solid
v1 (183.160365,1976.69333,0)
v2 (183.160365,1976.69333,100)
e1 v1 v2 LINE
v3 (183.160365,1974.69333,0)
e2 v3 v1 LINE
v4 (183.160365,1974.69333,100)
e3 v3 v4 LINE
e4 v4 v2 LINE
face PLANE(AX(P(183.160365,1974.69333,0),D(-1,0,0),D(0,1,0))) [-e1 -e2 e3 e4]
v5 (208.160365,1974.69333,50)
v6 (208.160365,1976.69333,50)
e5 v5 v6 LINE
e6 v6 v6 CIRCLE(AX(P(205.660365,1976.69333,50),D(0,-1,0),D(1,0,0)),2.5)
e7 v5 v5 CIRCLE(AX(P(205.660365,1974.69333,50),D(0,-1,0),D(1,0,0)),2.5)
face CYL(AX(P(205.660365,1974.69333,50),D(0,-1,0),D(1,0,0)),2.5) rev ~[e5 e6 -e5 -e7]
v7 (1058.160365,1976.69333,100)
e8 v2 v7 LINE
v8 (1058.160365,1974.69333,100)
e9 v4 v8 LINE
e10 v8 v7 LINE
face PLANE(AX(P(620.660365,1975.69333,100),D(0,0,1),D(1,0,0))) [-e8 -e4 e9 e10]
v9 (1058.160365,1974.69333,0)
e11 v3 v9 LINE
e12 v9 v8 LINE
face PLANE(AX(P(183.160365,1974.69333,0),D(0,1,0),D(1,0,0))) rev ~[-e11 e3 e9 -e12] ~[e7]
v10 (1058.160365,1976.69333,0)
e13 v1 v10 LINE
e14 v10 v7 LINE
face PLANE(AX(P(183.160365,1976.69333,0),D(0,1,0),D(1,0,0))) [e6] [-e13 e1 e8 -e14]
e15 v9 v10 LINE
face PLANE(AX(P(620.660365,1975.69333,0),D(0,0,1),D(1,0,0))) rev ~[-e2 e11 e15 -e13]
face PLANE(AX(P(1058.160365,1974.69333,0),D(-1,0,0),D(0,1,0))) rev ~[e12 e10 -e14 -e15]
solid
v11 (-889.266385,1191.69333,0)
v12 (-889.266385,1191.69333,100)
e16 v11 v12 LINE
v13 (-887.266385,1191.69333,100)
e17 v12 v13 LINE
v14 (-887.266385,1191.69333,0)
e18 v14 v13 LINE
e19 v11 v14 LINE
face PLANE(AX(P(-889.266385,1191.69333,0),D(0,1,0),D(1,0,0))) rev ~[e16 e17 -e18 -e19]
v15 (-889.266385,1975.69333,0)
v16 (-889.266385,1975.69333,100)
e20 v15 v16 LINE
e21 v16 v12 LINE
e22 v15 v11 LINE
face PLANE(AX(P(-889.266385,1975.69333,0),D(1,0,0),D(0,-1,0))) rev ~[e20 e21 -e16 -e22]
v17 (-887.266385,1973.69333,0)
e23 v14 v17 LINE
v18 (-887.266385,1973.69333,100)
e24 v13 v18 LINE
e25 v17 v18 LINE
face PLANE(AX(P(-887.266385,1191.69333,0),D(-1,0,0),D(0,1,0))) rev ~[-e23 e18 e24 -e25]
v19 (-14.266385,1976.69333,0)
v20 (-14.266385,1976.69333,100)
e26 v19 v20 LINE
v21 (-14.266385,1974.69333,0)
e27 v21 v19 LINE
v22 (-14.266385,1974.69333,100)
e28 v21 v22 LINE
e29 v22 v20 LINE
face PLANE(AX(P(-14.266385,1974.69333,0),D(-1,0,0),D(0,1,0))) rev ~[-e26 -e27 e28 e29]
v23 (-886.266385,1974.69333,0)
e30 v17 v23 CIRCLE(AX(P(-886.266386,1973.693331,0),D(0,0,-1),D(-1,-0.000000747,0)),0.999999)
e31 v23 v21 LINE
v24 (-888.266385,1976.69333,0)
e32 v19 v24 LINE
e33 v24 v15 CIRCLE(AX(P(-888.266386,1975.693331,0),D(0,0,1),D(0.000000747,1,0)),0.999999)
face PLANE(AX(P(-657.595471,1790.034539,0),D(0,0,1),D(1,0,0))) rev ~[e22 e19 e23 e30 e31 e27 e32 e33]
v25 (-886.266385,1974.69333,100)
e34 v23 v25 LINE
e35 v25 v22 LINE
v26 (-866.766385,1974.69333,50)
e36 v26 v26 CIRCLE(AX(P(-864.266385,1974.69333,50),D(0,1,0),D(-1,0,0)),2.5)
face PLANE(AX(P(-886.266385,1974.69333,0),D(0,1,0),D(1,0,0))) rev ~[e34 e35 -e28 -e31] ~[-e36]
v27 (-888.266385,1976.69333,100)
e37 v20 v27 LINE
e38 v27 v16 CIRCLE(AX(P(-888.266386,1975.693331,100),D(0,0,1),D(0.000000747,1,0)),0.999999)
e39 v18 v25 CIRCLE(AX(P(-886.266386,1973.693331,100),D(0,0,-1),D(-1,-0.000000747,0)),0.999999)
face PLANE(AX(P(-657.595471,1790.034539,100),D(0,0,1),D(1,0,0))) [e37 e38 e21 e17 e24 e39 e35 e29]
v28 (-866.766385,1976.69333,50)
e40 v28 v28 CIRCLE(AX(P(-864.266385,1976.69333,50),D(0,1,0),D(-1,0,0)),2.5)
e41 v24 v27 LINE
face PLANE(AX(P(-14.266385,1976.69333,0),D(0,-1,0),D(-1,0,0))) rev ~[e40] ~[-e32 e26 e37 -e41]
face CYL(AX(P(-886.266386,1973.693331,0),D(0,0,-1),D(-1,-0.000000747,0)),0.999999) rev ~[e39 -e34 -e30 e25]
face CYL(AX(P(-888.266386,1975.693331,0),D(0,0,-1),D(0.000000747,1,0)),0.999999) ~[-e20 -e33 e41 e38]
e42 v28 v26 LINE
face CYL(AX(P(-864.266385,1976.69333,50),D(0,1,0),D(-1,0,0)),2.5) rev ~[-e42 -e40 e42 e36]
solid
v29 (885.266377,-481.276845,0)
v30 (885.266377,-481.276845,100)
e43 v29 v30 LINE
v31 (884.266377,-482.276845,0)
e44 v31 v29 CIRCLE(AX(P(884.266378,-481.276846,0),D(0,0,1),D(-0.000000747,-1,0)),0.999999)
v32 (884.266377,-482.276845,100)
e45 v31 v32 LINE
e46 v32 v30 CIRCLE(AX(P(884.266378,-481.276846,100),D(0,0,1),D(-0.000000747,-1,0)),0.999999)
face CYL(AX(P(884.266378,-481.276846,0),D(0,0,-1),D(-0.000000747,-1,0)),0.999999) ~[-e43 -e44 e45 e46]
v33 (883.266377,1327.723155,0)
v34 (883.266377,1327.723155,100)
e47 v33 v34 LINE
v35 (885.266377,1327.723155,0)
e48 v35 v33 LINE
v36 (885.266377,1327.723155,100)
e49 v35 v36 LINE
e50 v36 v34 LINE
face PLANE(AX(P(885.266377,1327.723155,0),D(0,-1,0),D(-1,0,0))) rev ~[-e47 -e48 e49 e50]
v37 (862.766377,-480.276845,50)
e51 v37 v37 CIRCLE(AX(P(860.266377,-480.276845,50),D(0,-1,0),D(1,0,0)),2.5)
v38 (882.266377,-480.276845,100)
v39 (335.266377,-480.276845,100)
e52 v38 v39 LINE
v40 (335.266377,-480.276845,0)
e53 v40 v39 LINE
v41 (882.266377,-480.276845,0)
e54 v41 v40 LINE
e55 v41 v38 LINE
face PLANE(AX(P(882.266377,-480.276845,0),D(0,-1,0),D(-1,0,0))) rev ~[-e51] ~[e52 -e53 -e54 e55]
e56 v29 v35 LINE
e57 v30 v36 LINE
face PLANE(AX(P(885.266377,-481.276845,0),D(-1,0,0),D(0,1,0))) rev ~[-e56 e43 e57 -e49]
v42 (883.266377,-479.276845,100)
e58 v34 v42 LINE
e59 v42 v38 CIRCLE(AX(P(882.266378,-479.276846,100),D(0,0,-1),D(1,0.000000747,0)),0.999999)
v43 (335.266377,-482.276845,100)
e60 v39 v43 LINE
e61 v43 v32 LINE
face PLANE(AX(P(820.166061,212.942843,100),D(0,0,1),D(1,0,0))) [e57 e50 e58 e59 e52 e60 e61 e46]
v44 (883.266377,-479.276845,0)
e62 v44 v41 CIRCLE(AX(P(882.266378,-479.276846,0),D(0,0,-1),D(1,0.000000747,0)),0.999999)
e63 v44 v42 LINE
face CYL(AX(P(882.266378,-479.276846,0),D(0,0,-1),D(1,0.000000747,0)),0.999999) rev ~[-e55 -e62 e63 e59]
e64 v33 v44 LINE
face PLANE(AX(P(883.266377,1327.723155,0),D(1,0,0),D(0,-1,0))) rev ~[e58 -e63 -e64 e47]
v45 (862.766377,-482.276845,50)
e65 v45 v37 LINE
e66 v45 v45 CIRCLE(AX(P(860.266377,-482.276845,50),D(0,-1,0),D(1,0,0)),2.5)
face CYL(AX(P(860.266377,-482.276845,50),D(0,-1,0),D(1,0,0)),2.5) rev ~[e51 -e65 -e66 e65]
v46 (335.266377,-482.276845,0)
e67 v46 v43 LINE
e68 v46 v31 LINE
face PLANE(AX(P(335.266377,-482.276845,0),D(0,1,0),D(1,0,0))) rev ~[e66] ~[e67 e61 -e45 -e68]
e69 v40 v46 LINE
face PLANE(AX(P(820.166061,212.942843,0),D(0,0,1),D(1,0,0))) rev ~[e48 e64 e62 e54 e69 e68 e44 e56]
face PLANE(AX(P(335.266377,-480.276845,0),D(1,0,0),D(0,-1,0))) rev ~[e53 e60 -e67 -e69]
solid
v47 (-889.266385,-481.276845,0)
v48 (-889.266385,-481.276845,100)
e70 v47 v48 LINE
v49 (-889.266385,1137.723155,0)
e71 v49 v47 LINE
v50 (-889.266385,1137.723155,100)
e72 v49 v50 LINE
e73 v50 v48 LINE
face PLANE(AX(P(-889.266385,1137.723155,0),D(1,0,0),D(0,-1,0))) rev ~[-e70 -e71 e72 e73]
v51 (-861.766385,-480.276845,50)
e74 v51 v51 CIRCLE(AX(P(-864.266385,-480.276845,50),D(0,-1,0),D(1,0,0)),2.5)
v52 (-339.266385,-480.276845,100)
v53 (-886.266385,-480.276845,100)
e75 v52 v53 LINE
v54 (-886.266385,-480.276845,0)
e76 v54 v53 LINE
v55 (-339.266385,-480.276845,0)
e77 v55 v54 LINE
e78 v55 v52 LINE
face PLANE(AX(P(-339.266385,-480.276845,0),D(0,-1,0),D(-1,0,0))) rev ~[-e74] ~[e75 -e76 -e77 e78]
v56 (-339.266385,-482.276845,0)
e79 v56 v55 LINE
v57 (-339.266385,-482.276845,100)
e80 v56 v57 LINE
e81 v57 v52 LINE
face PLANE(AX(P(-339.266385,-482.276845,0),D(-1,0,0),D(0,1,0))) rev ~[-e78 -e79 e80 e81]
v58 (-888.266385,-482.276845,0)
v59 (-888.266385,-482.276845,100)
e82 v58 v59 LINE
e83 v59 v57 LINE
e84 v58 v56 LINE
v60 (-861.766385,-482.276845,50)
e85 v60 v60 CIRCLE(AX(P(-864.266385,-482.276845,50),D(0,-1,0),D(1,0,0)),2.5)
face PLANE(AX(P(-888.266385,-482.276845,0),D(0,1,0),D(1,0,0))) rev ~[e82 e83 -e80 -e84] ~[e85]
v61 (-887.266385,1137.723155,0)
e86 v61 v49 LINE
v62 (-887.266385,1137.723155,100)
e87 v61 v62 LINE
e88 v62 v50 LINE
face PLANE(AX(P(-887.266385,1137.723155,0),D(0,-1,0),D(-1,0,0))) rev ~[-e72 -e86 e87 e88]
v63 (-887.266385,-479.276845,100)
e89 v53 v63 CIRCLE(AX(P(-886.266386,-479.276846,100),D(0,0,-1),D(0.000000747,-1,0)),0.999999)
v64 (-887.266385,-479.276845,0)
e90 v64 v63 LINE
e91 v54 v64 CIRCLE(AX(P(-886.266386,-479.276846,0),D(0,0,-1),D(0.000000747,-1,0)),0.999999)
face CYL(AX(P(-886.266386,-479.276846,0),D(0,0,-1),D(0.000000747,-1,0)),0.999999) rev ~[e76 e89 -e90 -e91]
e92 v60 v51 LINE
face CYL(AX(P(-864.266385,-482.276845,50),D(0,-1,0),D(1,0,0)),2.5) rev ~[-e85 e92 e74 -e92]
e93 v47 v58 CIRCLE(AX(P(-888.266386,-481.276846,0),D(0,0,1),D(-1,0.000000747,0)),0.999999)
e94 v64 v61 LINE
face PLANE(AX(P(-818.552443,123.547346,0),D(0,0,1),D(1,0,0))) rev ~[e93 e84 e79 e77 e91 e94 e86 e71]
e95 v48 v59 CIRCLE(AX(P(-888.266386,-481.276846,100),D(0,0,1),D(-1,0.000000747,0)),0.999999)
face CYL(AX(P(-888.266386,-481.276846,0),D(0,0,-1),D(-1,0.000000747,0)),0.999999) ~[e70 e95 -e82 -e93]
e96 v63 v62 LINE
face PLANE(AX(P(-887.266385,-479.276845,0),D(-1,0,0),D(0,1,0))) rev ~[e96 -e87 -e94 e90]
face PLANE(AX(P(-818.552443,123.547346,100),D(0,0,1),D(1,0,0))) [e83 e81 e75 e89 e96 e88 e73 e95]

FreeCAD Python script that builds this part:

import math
import FreeCAD as App
import Part
import Sketcher


def add_polygon(sketch, points):
    """Adds a closed chain of lines whose ends are joined by coincident constraints."""
    first, n = sketch.GeometryCount, len(points)
    for a, b in zip(points, points[1:] + points[:1]):
        sketch.addGeometry(Part.LineSegment(App.Vector(*a, 0), App.Vector(*b, 0)), False)
    for i in range(n):
        sketch.addConstraint(Sketcher.Constraint("Coincident", first + i, 2, first + (i + 1) % n, 1))

doc = App.newDocument("Part")
body = doc.addObject("PartDesign::Body", "Body")
body.AllowCompound = True

# Sketch on XY plane
sketch1 = doc.addObject("Sketcher::SketchObject", "Sketch")
body.addObject(sketch1)
sketch1.AttachmentSupport = (doc.XY_Plane, [""])
sketch1.MapMode = "FlatFace"
sketch1.addGeometry(Part.LineSegment(App.Vector(-339.3, -482.3, 0), App.Vector(-339.3, -480.3, 0)), False)  # 0
sketch1.addGeometry(Part.LineSegment(App.Vector(-339.3, -480.3, 0), App.Vector(-886.3, -480.3, 0)), False)  # 1
sketch1.addGeometry(Part.ArcOfCircle(Part.Circle(App.Vector(-886.3, -479.3, 0), App.Vector(0, 0, 1), 1), math.radians(180), math.radians(270)), False)  # 2
sketch1.addGeometry(Part.LineSegment(App.Vector(-887.3, -479.3, 0), App.Vector(-887.3, 1137.7, 0)), False)  # 3
sketch1.addGeometry(Part.LineSegment(App.Vector(-887.3, 1137.7, 0), App.Vector(-889.3, 1137.7, 0)), False)  # 4
sketch1.addGeometry(Part.LineSegment(App.Vector(-889.3, 1137.7, 0), App.Vector(-889.3, -481.3, 0)), False)  # 5
sketch1.addGeometry(Part.ArcOfCircle(Part.Circle(App.Vector(-888.3, -481.3, 0), App.Vector(0, 0, 1), 1), math.radians(180), math.radians(270)), False)  # 6
sketch1.addGeometry(Part.LineSegment(App.Vector(-888.3, -482.3, 0), App.Vector(-339.3, -482.3, 0)), False)  # 7
sketch1.addGeometry(Part.LineSegment(App.Vector(882.3, -480.3, 0), App.Vector(335.3, -480.3, 0)), False)  # 8
sketch1.addGeometry(Part.LineSegment(App.Vector(335.3, -480.3, 0), App.Vector(335.3, -482.3, 0)), False)  # 9
sketch1.addGeometry(Part.LineSegment(App.Vector(335.3, -482.3, 0), App.Vector(884.3, -482.3, 0)), False)  # 10
sketch1.addGeometry(Part.ArcOfCircle(Part.Circle(App.Vector(884.3, -481.3, 0), App.Vector(0, 0, 1), 1), math.radians(-90), math.radians(0)), False)  # 11
sketch1.addGeometry(Part.LineSegment(App.Vector(885.3, -481.3, 0), App.Vector(885.3, 1327.7, 0)), False)  # 12
sketch1.addGeometry(Part.LineSegment(App.Vector(885.3, 1327.7, 0), App.Vector(883.3, 1327.7, 0)), False)  # 13
sketch1.addGeometry(Part.LineSegment(App.Vector(883.3, 1327.7, 0), App.Vector(883.3, -479.3, 0)), False)  # 14
sketch1.addGeometry(Part.ArcOfCircle(Part.Circle(App.Vector(882.3, -479.3, 0), App.Vector(0, 0, 1), 1), math.radians(-90), math.radians(0)), False)  # 15
sketch1.addGeometry(Part.LineSegment(App.Vector(-889.3, 1975.7, 0), App.Vector(-889.3, 1191.7, 0)), False)  # 16
sketch1.addGeometry(Part.LineSegment(App.Vector(-889.3, 1191.7, 0), App.Vector(-887.3, 1191.7, 0)), False)  # 17
sketch1.addGeometry(Part.LineSegment(App.Vector(-887.3, 1191.7, 0), App.Vector(-887.3, 1973.7, 0)), False)  # 18
sketch1.addGeometry(Part.ArcOfCircle(Part.Circle(App.Vector(-886.3, 1973.7, 0), App.Vector(0, 0, 1), 1), math.radians(90), math.radians(180)), False)  # 19
sketch1.addGeometry(Part.LineSegment(App.Vector(-886.3, 1974.7, 0), App.Vector(-14.3, 1974.7, 0)), False)  # 20
sketch1.addGeometry(Part.LineSegment(App.Vector(-14.3, 1974.7, 0), App.Vector(-14.3, 1976.7, 0)), False)  # 21
sketch1.addGeometry(Part.LineSegment(App.Vector(-14.3, 1976.7, 0), App.Vector(-888.3, 1976.7, 0)), False)  # 22
sketch1.addGeometry(Part.ArcOfCircle(Part.Circle(App.Vector(-888.3, 1975.7, 0), App.Vector(0, 0, 1), 1), math.radians(90), math.radians(180)), False)  # 23
add_polygon(sketch1, [(183.2, 1976.7), (183.2, 1974.7), (1058.2, 1974.7), (1058.2, 1976.7)])  # lines 24-27
sketch1.addConstraint([
    Sketcher.Constraint("Coincident", 0, 2, 1, 1),
    Sketcher.Constraint("Tangent", 1, 2, 2, 2),
    Sketcher.Constraint("Tangent", 2, 1, 3, 1),
    Sketcher.Constraint("Coincident", 3, 2, 4, 1),
    Sketcher.Constraint("Coincident", 4, 2, 5, 1),
    Sketcher.Constraint("Tangent", 5, 2, 6, 1),
    Sketcher.Constraint("Tangent", 6, 2, 7, 1),
    Sketcher.Constraint("Coincident", 7, 2, 0, 1),
    Sketcher.Constraint("Coincident", 8, 2, 9, 1),
    Sketcher.Constraint("Coincident", 9, 2, 10, 1),
    Sketcher.Constraint("Tangent", 10, 2, 11, 1),
    Sketcher.Constraint("Tangent", 11, 2, 12, 1),
    Sketcher.Constraint("Coincident", 12, 2, 13, 1),
    Sketcher.Constraint("Coincident", 13, 2, 14, 1),
    Sketcher.Constraint("Tangent", 14, 2, 15, 2),
    Sketcher.Constraint("Tangent", 15, 1, 8, 1),
    Sketcher.Constraint("Coincident", 16, 2, 17, 1),
    Sketcher.Constraint("Coincident", 17, 2, 18, 1),
    Sketcher.Constraint("Tangent", 18, 2, 19, 2),
    Sketcher.Constraint("Tangent", 19, 1, 20, 1),
    Sketcher.Constraint("Coincident", 20, 2, 21, 1),
    Sketcher.Constraint("Coincident", 21, 2, 22, 1),
    Sketcher.Constraint("Tangent", 22, 2, 23, 1),
    Sketcher.Constraint("Tangent", 23, 2, 16, 1),
    Sketcher.Constraint("Vertical", 0),
    Sketcher.Constraint("Horizontal", 1),
    Sketcher.Constraint("Vertical", 3),
    Sketcher.Constraint("Horizontal", 4),
    Sketcher.Constraint("Vertical", 5),
    Sketcher.Constraint("Horizontal", 7),
    Sketcher.Constraint("Horizontal", 8),
    Sketcher.Constraint("Vertical", 9),
    Sketcher.Constraint("Horizontal", 10),
    Sketcher.Constraint("Vertical", 12),
    Sketcher.Constraint("Horizontal", 13),
    Sketcher.Constraint("Vertical", 14),
    Sketcher.Constraint("Vertical", 16),
    Sketcher.Constraint("Horizontal", 17),
    Sketcher.Constraint("Vertical", 18),
    Sketcher.Constraint("Horizontal", 20),
    Sketcher.Constraint("Vertical", 21),
    Sketcher.Constraint("Horizontal", 22),
    Sketcher.Constraint("Vertical", 24),
    Sketcher.Constraint("Horizontal", 25),
    Sketcher.Constraint("Vertical", 26),
    Sketcher.Constraint("Horizontal", 27),
    Sketcher.Constraint("Equal", 2, 6),
    Sketcher.Constraint("Equal", 6, 11),
    Sketcher.Constraint("Equal", 11, 15),
    Sketcher.Constraint("Equal", 15, 19),
    Sketcher.Constraint("Equal", 19, 23),
    Sketcher.Constraint("Horizontal", 6, 3, 11, 3),
    Sketcher.Constraint("Horizontal", 2, 3, 15, 3),
    Sketcher.Constraint("Horizontal", 20, 2, 24, 2),
    Sketcher.Constraint("Horizontal", 22, 2, 26, 2),
    Sketcher.Constraint("Vertical", 2, 3, 19, 3),
    Sketcher.Constraint("Vertical", 6, 3, 23, 3),
    Sketcher.Constraint("Equal", 1, 8),
    Sketcher.Constraint("Equal", 7, 10),
    Sketcher.Constraint("Equal", 17, 0),
    Sketcher.Constraint("Equal", 9, 21),
    Sketcher.Constraint("Radius", 2, 0.999999),
    Sketcher.Constraint("DistanceX", 1, 2, 1, 1, 547.0),
    Sketcher.Constraint("DistanceX", 4, 2, 4, 1, 2.0),
    Sketcher.Constraint("DistanceX", 20, 1, 20, 2, 872.0),
    Sketcher.Constraint("DistanceX", 25, 1, 25, 2, 875.0),
    Sketcher.Constraint("DistanceY", 3, 1, 3, 2, 1617.0),
    Sketcher.Constraint("DistanceY", 12, 1, 12, 2, 1809.0),
    Sketcher.Constraint("DistanceY", 16, 2, 16, 1, 784.0),
    Sketcher.Constraint("DistanceY", -1, 1, 19, 3, 1973.693331),
    Sketcher.Constraint("DistanceX", 0, 2, 8, 2, 674.532762),
    Sketcher.Constraint("DistanceX", 20, 2, 24, 2, 197.42675),
    Sketcher.Constraint("DistanceX", 2, 3, -1, 1, 886.266386),
    Sketcher.Constraint("DistanceY", 2, 3, -1, 1, 479.276846),
])
pad1 = doc.addObject("PartDesign::Pad", "Pad")
body.addObject(pad1)
pad1.Profile = sketch1
pad1.Length = 100

# Sketch on XZ plane
sketch2 = doc.addObject("Sketcher::SketchObject", "Sketch001")
body.addObject(sketch2)
sketch2.AttachmentSupport = (doc.XZ_Plane, [""])
sketch2.MapMode = "FlatFace"
sketch2.AttachmentOffset = App.Placement(App.Vector(0, 0, -1976.69333), App.Rotation())
sketch2.addGeometry(Part.Circle(App.Vector(-864.3, 50, 0), App.Vector(0, 0, 1), 2.5), False)
sketch2.addConstraint([
    Sketcher.Constraint("Diameter", 0, 5.0),
    Sketcher.Constraint("DistanceY", -1, 1, 0, 3, 50.0),
    Sketcher.Constraint("DistanceX", 0, 3, -1, 1, 864.266385),
])
pocket1 = doc.addObject("PartDesign::Pocket", "Pocket")
body.addObject(pocket1)
pocket1.Profile = sketch2
pocket1.Length = 25
pocket1.Reversed = True

# Sketch on XZ plane
sketch3 = doc.addObject("Sketcher::SketchObject", "Sketch002")
body.addObject(sketch3)
sketch3.AttachmentSupport = (doc.XZ_Plane, [""])
sketch3.MapMode = "FlatFace"
sketch3.AttachmentOffset = App.Placement(App.Vector(0, 0, 482.276845), App.Rotation())
sketch3.addGeometry(Part.Circle(App.Vector(-864.3, 50, 0), App.Vector(0, 0, 1), 2.5), False)
sketch3.addConstraint([
    Sketcher.Constraint("Diameter", 0, 5.0),
    Sketcher.Constraint("DistanceY", -1, 1, 0, 3, 50.0),
    Sketcher.Constraint("DistanceX", 0, 3, -1, 1, 864.266385),
])
pocket2 = doc.addObject("PartDesign::Pocket", "Pocket001")
body.addObject(pocket2)
pocket2.Profile = sketch3
pocket2.Length = 25

# Sketch on XZ plane
sketch4 = doc.addObject("Sketcher::SketchObject", "Sketch003")
body.addObject(sketch4)
sketch4.AttachmentSupport = (doc.XZ_Plane, [""])
sketch4.MapMode = "FlatFace"
sketch4.AttachmentOffset = App.Placement(App.Vector(0, 0, 482.276845), App.Rotation())
sketch4.addGeometry(Part.Circle(App.Vector(860.3, 50, 0), App.Vector(0, 0, 1), 2.5), False)
sketch4.addConstraint([
    Sketcher.Constraint("Diameter", 0, 5.0),
    Sketcher.Constraint("DistanceY", -1, 1, 0, 3, 50.0),
    Sketcher.Constraint("DistanceX", -1, 1, 0, 3, 860.266377),
])
pocket3 = doc.addObject("PartDesign::Pocket", "Pocket002")
body.addObject(pocket3)
pocket3.Profile = sketch4
pocket3.Length = 25

# Sketch on XZ plane
sketch5 = doc.addObject("Sketcher::SketchObject", "Sketch004")
body.addObject(sketch5)
sketch5.AttachmentSupport = (doc.XZ_Plane, [""])
sketch5.MapMode = "FlatFace"
sketch5.AttachmentOffset = App.Placement(App.Vector(0, 0, -1974.69333), App.Rotation())
sketch5.addGeometry(Part.Circle(App.Vector(205.7, 50, 0), App.Vector(0, 0, 1), 2.5), False)
sketch5.addConstraint([
    Sketcher.Constraint("Diameter", 0, 5.0),
    Sketcher.Constraint("DistanceY", -1, 1, 0, 3, 50.0),
    Sketcher.Constraint("DistanceX", -1, 1, 0, 3, 205.660365),
])
pocket4 = doc.addObject("PartDesign::Pocket", "Pocket003")
body.addObject(pocket4)
pocket4.Profile = sketch5
pocket4.Length = 25

doc.recompute()
